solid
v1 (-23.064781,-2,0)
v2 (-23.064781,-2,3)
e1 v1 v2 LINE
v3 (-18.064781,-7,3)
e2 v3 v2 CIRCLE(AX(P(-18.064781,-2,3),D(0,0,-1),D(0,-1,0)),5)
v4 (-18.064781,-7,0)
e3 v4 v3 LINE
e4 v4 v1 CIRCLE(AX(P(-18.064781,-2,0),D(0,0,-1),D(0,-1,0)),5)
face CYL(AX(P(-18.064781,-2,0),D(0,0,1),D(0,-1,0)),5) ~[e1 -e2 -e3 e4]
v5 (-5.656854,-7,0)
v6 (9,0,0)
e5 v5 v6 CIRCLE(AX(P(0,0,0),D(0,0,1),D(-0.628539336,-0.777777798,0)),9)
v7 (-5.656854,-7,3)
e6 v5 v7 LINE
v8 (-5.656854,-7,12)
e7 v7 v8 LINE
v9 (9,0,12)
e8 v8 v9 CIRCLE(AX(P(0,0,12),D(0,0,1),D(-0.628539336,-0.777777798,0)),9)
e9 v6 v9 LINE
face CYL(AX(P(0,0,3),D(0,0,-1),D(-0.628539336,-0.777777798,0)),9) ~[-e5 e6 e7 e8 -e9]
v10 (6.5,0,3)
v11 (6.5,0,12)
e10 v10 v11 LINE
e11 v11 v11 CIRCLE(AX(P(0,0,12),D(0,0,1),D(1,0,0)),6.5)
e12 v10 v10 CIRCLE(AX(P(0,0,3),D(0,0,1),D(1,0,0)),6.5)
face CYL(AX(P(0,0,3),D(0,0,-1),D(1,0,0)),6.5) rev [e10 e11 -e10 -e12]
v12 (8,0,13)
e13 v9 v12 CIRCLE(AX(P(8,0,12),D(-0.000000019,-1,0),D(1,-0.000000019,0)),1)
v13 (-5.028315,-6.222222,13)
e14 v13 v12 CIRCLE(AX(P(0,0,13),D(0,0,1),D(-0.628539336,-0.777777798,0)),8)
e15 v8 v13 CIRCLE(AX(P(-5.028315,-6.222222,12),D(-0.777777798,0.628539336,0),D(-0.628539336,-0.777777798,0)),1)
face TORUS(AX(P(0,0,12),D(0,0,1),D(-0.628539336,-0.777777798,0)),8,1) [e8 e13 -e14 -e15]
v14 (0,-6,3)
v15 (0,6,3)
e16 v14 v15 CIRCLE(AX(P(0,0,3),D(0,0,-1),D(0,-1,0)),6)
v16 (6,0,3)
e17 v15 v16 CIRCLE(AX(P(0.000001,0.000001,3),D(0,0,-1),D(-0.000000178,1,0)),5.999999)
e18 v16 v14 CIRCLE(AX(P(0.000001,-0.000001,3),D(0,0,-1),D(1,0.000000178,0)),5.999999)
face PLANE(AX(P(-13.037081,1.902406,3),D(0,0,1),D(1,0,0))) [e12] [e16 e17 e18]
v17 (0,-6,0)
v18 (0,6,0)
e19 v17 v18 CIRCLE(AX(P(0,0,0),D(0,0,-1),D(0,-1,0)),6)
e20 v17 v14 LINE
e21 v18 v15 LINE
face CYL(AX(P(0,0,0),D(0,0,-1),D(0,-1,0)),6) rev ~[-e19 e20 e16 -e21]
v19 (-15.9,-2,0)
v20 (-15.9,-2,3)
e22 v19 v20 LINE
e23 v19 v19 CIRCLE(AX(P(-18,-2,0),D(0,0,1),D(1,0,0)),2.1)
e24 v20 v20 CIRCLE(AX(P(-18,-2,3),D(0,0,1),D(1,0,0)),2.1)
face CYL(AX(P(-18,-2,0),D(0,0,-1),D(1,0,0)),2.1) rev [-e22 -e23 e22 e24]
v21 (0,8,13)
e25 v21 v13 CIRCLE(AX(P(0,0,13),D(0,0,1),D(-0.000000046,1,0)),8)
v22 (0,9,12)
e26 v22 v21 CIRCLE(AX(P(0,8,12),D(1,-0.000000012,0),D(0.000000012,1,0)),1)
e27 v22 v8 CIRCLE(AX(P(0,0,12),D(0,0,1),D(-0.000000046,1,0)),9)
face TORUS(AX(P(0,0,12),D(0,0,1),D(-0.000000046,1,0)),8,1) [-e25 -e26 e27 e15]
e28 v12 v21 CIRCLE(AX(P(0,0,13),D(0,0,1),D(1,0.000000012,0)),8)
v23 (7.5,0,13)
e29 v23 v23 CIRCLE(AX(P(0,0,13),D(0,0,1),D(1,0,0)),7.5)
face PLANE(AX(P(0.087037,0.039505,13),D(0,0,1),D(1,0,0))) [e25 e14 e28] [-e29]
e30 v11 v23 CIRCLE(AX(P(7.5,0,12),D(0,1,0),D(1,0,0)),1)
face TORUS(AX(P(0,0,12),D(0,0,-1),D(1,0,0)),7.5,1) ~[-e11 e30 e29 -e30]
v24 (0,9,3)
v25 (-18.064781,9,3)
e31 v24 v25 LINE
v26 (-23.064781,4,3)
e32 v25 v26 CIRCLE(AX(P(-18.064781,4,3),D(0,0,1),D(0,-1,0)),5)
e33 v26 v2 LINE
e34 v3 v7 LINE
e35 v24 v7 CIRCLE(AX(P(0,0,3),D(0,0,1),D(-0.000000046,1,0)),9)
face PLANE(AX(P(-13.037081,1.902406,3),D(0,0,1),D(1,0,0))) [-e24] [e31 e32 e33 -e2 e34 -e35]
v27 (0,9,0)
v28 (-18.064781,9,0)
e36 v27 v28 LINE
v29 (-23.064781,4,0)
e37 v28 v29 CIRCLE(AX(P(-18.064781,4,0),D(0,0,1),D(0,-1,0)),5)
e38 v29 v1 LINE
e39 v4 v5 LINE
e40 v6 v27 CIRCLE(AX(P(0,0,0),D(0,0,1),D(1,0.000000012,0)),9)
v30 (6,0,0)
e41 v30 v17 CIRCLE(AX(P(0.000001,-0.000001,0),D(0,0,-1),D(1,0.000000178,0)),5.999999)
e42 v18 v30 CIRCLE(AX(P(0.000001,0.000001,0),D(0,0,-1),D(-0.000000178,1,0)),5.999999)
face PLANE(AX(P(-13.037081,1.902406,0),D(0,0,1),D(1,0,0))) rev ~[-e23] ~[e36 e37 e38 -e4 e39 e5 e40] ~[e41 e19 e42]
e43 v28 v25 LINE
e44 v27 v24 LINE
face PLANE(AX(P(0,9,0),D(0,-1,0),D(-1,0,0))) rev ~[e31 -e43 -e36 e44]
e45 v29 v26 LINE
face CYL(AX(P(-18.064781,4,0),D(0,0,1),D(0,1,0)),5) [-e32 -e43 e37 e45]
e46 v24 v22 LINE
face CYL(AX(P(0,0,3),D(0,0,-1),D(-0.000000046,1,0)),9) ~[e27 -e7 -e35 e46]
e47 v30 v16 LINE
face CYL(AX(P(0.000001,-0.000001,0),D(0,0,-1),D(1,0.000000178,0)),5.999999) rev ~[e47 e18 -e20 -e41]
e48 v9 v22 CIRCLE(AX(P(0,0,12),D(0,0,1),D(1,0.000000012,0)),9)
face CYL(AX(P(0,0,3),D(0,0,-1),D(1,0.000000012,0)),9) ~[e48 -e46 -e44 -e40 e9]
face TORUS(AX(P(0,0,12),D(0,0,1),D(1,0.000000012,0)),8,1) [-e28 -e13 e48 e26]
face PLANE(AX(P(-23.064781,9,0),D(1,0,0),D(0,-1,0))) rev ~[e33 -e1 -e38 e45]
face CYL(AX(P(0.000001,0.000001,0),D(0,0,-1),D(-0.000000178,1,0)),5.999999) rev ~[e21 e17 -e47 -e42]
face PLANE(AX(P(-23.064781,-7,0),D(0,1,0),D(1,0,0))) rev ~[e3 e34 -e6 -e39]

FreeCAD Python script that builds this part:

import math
import FreeCAD as App
import Part
import Sketcher

V = App.Vector
Q = App.Units.Quantity


def edges_at(feature, points):
    """Names of the edges that pass closest to the given points."""
    edges = feature.Shape.Edges
    near = lambda p: min(range(len(edges)), key=lambda i: edges[i].distToShape(Part.Vertex(*p))[0])
    return sorted({f"Edge{near(p) + 1}" for p in points})

doc = App.newDocument("Part")
body = doc.addObject("PartDesign::Body", "Body")

# Sketch on XY plane
sketch1 = body.newObject("Sketcher::SketchObject", "Sketch")
sketch1.AttachmentSupport = (doc.getObject("XY_Plane"), [""])
sketch1.MapMode = "FlatFace"
sketch1.addGeometry(Part.LineSegment(V(-23.064781, -7, 0), V(-5.656854, -7, 0)), False)
sketch1.addGeometry(Part.ArcOfCircle(Part.Circle(V(0, 0, 0), V(0, 0, 1), 9), math.radians(-128.942439), math.radians(-0.000001)), False)
sketch1.addGeometry(Part.ArcOfCircle(Part.Circle(V(0, 0, 0), V(0, 0, 1), 9), math.radians(0.000001), math.radians(89.999999)), False)
sketch1.addGeometry(Part.LineSegment(V(0, 9, 0), V(-23.064781, 9, 0)), False)
sketch1.addGeometry(Part.LineSegment(V(-23.064781, 9, 0), V(-23.064781, -7, 0)), False)
sketch1.addGeometry(Part.ArcOfCircle(Part.Circle(V(0, 0, 0), V(0, 0, 1), 6), math.radians(90), math.radians(270)), False)
sketch1.addGeometry(Part.ArcOfCircle(Part.Circle(V(0.000001, 0.000001, 0), V(0, 0, 1), 5.999999), math.radians(-0.00001), math.radians(90.00001)), False)
sketch1.addGeometry(Part.ArcOfCircle(Part.Circle(V(0.000001, -0.000001, 0), V(0, 0, 1), 5.999999), math.radians(-90.00001), math.radians(0.00001)), False)
sketch1.addGeometry(Part.Circle(V(-18, -2, 0), V(0, 0, 1), 2.1), False)
sketch1.addConstraint(Sketcher.Constraint("Coincident", 0, 2, 1, 1))
sketch1.addConstraint(Sketcher.Constraint("Tangent", 1, 2, 2, 1))
sketch1.addConstraint(Sketcher.Constraint("Tangent", 2, 2, 3, 1))
sketch1.addConstraint(Sketcher.Constraint("Coincident", 3, 2, 4, 1))
sketch1.addConstraint(Sketcher.Constraint("Coincident", 4, 2, 0, 1))
sketch1.addConstraint(Sketcher.Constraint("Tangent", 5, 1, 6, 2))
sketch1.addConstraint(Sketcher.Constraint("Tangent", 6, 1, 7, 2))
sketch1.addConstraint(Sketcher.Constraint("Tangent", 7, 1, 5, 2))
sketch1.addConstraint(Sketcher.Constraint("Horizontal", 0))
sketch1.addConstraint(Sketcher.Constraint("Horizontal", 3))
sketch1.addConstraint(Sketcher.Constraint("Vertical", 4))
sketch1.addConstraint(Sketcher.Constraint("Coincident", 1, 3, -1, 1))
sketch1.addConstraint(Sketcher.Constraint("Coincident", 5, 3, -1, 1))
sketch1.addConstraint(Sketcher.Constraint("Equal", 1, 2))
sketch1.addConstraint(Sketcher.Constraint("PointOnObject", 1, 2, -1))
sketch1.addConstraint(Sketcher.Constraint("PointOnObject", 5, 1, -2))
sketch1.addConstraint(Sketcher.Constraint("PointOnObject", 6, 1, -1))
sketch1.addConstraint(Sketcher.Constraint("PointOnObject", 7, 1, -2))
sketch1.addConstraint(Sketcher.Constraint("Radius", 1, Q("9 mm")))
sketch1.addConstraint(Sketcher.Constraint("Radius", 5, Q("6 mm")))
sketch1.addConstraint(Sketcher.Constraint("Diameter", 8, Q("4.2 mm")))
sketch1.addConstraint(Sketcher.Constraint("DistanceY", 4, 2, 4, 1, Q("16 mm")))
sketch1.addConstraint(Sketcher.Constraint("DistanceX", 8, 3, -1, 1, Q("18 mm")))
sketch1.addConstraint(Sketcher.Constraint("DistanceY", 8, 3, -1, 1, Q("2 mm")))
sketch1.addConstraint(Sketcher.Constraint("DistanceX", 3, 2, 3, 1, Q("23.064781 mm")))
pad1 = body.newObject("PartDesign::Pad", "Pad")
pad1.Profile = sketch1
pad1.Length = 3
doc.recompute()

fillet = body.newObject("PartDesign::Fillet", "Fillet")
fillet.Base = (pad1, edges_at(pad1, [(-23.065, 9, 1.5), (-23.065, -7, 1.5)]))
fillet.Radius = 5

# Sketch on XY plane
sketch2 = body.newObject("Sketcher::SketchObject", "Sketch001")
sketch2.AttachmentSupport = (doc.getObject("XY_Plane"), [""])
sketch2.MapMode = "FlatFace"
sketch2.AttachmentOffset = App.Placement(V(0, 0, 3), App.Rotation())
sketch2.addGeometry(Part.ArcOfCircle(Part.Circle(V(0, 0, 0), V(0, 0, 1), 9), math.radians(-128.942439), math.radians(-0.000001)), False)
sketch2.addGeometry(Part.ArcOfCircle(Part.Circle(V(0, 0, 0), V(0, 0, 1), 9), math.radians(0.000001), math.radians(89.999999)), False)
sketch2.addGeometry(Part.ArcOfCircle(Part.Circle(V(0, 0, 0), V(0, 0, 1), 9), math.radians(90.000003), math.radians(231.057558)), False)
sketch2.addGeometry(Part.Circle(V(0, 0, 0), V(0, 0, 1), 6.5), False)
sketch2.addConstraint(Sketcher.Constraint("Tangent", 0, 2, 1, 1))
sketch2.addConstraint(Sketcher.Constraint("Tangent", 1, 2, 2, 1))
sketch2.addConstraint(Sketcher.Constraint("Tangent", 2, 2, 0, 1))
sketch2.addConstraint(Sketcher.Constraint("Coincident", 0, 3, -1, 1))
sketch2.addConstraint(Sketcher.Constraint("Coincident", 3, 3, -1, 1))
sketch2.addConstraint(Sketcher.Constraint("PointOnObject", 0, 2, -1))
sketch2.addConstraint(Sketcher.Constraint("PointOnObject", 1, 2, -2))
sketch2.addConstraint(Sketcher.Constraint("Diameter", 3, Q("13 mm")))
sketch2.addConstraint(Sketcher.Constraint("Radius", 0, Q("9 mm")))
sketch2.addConstraint(Sketcher.Constraint("DistanceY", 2, 2, -1, 1, Q("7 mm")))
pad2 = body.newObject("PartDesign::Pad", "Pad001")
pad2.Profile = sketch2
pad2.Length = 10
doc.recompute()

fillet2 = body.newObject("PartDesign::Fillet", "Fillet001")
fillet2.Base = (pad2, edges_at(pad2, [(3.879, -8.121, 13), (-6.5, 0, 13)]))
fillet2.Radius = 1

doc.recompute()
